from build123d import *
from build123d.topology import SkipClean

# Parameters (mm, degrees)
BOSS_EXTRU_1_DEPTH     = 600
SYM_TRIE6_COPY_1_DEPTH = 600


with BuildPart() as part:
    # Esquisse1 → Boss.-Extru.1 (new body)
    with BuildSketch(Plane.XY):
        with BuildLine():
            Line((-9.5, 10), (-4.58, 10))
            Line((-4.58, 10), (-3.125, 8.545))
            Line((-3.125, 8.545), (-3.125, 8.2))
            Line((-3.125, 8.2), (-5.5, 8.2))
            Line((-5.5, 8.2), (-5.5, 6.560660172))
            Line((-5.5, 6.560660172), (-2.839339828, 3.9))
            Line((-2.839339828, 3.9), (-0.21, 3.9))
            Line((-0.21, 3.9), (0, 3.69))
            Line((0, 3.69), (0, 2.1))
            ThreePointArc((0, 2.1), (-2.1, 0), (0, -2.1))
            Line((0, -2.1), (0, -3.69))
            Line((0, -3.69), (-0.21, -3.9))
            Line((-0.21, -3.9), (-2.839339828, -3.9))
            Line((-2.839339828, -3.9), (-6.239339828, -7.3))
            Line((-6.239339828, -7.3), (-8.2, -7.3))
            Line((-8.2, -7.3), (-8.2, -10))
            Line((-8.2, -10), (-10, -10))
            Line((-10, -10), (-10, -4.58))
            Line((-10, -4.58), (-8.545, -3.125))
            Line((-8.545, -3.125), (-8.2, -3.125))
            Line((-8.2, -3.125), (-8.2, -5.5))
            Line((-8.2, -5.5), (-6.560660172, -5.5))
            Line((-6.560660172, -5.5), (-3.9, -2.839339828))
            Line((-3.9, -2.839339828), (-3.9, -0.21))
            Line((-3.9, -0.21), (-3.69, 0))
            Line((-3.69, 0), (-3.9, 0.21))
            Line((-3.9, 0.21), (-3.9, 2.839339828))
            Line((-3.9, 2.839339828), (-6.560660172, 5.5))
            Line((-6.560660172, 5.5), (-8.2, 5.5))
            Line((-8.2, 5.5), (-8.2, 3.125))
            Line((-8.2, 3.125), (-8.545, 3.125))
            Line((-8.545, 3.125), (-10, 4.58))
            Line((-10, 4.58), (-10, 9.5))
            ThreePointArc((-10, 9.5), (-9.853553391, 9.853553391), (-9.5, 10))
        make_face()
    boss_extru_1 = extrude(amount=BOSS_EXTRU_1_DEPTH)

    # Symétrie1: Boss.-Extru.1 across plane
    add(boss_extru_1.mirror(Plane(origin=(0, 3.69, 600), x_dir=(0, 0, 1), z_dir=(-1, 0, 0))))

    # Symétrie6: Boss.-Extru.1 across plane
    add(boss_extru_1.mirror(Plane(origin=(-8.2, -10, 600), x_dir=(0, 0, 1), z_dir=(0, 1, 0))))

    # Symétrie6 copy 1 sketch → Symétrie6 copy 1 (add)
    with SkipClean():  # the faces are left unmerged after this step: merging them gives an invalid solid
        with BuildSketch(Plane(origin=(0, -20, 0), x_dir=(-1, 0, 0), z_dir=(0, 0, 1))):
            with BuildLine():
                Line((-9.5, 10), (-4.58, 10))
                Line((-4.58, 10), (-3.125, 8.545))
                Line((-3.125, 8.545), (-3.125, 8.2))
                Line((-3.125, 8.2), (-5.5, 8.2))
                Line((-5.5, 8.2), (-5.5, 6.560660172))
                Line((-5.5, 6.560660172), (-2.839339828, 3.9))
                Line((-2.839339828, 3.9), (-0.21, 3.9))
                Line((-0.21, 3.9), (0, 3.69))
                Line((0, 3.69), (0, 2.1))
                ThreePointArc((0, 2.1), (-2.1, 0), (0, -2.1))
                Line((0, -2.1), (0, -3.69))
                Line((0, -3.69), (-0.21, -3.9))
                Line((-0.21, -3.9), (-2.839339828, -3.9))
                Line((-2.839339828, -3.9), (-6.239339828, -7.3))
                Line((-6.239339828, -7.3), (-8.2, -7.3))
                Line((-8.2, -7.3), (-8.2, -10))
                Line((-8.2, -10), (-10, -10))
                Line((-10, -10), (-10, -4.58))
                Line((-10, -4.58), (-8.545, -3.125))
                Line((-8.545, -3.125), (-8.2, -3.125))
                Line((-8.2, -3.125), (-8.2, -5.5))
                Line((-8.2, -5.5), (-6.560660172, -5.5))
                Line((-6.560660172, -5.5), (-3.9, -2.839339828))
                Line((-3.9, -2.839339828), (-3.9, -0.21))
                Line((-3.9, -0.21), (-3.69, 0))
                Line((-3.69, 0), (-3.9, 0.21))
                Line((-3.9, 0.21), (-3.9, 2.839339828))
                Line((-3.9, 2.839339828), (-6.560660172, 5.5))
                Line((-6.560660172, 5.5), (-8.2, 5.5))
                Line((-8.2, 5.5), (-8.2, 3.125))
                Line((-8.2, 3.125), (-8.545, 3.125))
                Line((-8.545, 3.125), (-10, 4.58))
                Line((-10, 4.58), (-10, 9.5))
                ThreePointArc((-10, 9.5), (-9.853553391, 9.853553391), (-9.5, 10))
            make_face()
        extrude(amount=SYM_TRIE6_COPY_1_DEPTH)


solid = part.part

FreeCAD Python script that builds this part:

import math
import FreeCAD as App
import Part
import Sketcher

doc = App.newDocument("Part")
body = doc.addObject("PartDesign::Body", "Body")

sketch1 = body.newObject("Sketcher::SketchObject", "Sketch")
sketch1.AttachmentSupport = (doc.getObject("XY_Plane"), [""])
sketch1.MapMode = "FlatFace"
sketch1.addGeometry(Part.LineSegment(App.Vector(-4.58, 10, 0), App.Vector(-9.5, 10, 0)), False)
sketch1.addGeometry(Part.ArcOfCircle(Part.Circle(App.Vector(-9.5, 9.5, 0), App.Vector(0, 0, 1), 0.5), math.radians(90), math.radians(180)), False)
sketch1.addGeometry(Part.LineSegment(App.Vector(-10, 9.5, 0), App.Vector(-10, 4.58, 0)), False)
sketch1.addGeometry(Part.LineSegment(App.Vector(-10, 4.58, 0), App.Vector(-8.54, 3.12, 0)), False)
sketch1.addGeometry(Part.LineSegment(App.Vector(-8.54, 3.12, 0), App.Vector(-8.2, 3.12, 0)), False)
sketch1.addGeometry(Part.LineSegment(App.Vector(-8.2, 3.12, 0), App.Vector(-8.2, 5.5, 0)), False)
sketch1.addGeometry(Part.LineSegment(App.Vector(-8.2, 5.5, 0), App.Vector(-6.56, 5.5, 0)), False)
sketch1.addGeometry(Part.LineSegment(App.Vector(-6.56, 5.5, 0), App.Vector(-3.9, 2.84, 0)), False)
sketch1.addGeometry(Part.LineSegment(App.Vector(-3.9, 2.84, 0), App.Vector(-3.9, 0.21, 0)), False)
sketch1.addGeometry(Part.LineSegment(App.Vector(-3.9, 0.21, 0), App.Vector(-3.69, 0, 0)), False)
sketch1.addGeometry(Part.LineSegment(App.Vector(-3.69, 0, 0), App.Vector(-3.9, -0.21, 0)), False)
sketch1.addGeometry(Part.LineSegment(App.Vector(-3.9, -0.21, 0), App.Vector(-3.9, -2.84, 0)), False)
sketch1.addGeometry(Part.LineSegment(App.Vector(-3.9, -2.84, 0), App.Vector(-6.56, -5.5, 0)), False)
sketch1.addGeometry(Part.LineSegment(App.Vector(-6.56, -5.5, 0), App.Vector(-8.2, -5.5, 0)), False)
sketch1.addGeometry(Part.LineSegment(App.Vector(-8.2, -5.5, 0), App.Vector(-8.2, -3.12, 0)), False)
sketch1.addGeometry(Part.LineSegment(App.Vector(-8.2, -3.12, 0), App.Vector(-8.54, -3.12, 0)), False)
sketch1.addGeometry(Part.LineSegment(App.Vector(-8.54, -3.12, 0), App.Vector(-10, -4.58, 0)), False)
sketch1.addGeometry(Part.LineSegment(App.Vector(-10, -4.58, 0), App.Vector(-10, -10, 0)), False)
sketch1.addGeometry(Part.LineSegment(App.Vector(-10, -10, 0), App.Vector(-8.2, -10, 0)), False)
sketch1.addGeometry(Part.LineSegment(App.Vector(-8.2, -10, 0), App.Vector(-8.2, -7.3, 0)), False)
sketch1.addGeometry(Part.LineSegment(App.Vector(-8.2, -7.3, 0), App.Vector(-6.24, -7.3, 0)), False)
sketch1.addGeometry(Part.LineSegment(App.Vector(-6.24, -7.3, 0), App.Vector(-2.84, -3.9, 0)), False)
sketch1.addGeometry(Part.LineSegment(App.Vector(-2.84, -3.9, 0), App.Vector(-0.21, -3.9, 0)), False)
sketch1.addGeometry(Part.LineSegment(App.Vector(-0.21, -3.9, 0), App.Vector(0, -3.69, 0)), False)
sketch1.addGeometry(Part.LineSegment(App.Vector(0, -3.69, 0), App.Vector(0, -2.1, 0)), False)
sketch1.addGeometry(Part.ArcOfCircle(Part.Circle(App.Vector(0, 0, 0), App.Vector(0, 0, 1), 2.1), math.radians(90), math.radians(270)), False)
sketch1.addGeometry(Part.LineSegment(App.Vector(0, 2.1, 0), App.Vector(0, 3.69, 0)), False)
sketch1.addGeometry(Part.LineSegment(App.Vector(0, 3.69, 0), App.Vector(-0.21, 3.9, 0)), False)
sketch1.addGeometry(Part.LineSegment(App.Vector(-0.21, 3.9, 0), App.Vector(-2.84, 3.9, 0)), False)
sketch1.addGeometry(Part.LineSegment(App.Vector(-2.84, 3.9, 0), App.Vector(-5.5, 6.56, 0)), False)
sketch1.addGeometry(Part.LineSegment(App.Vector(-5.5, 6.56, 0), App.Vector(-5.5, 8.2, 0)), False)
sketch1.addGeometry(Part.LineSegment(App.Vector(-5.5, 8.2, 0), App.Vector(-3.12, 8.2, 0)), False)
sketch1.addGeometry(Part.LineSegment(App.Vector(-3.12, 8.2, 0), App.Vector(-3.12, 8.54, 0)), False)
sketch1.addGeometry(Part.LineSegment(App.Vector(-3.12, 8.54, 0), App.Vector(-4.58, 10, 0)), False)
sketch1.addConstraint(Sketcher.Constraint("Tangent", 0, 2, 1, 1))
sketch1.addConstraint(Sketcher.Constraint("Tangent", 1, 2, 2, 1))
sketch1.addConstraint(Sketcher.Constraint("Coincident", 2, 2, 3, 1))
sketch1.addConstraint(Sketcher.Constraint("Coincident", 3, 2, 4, 1))
sketch1.addConstraint(Sketcher.Constraint("Coincident", 4, 2, 5, 1))
sketch1.addConstraint(Sketcher.Constraint("Coincident", 5, 2, 6, 1))
sketch1.addConstraint(Sketcher.Constraint("Coincident", 6, 2, 7, 1))
sketch1.addConstraint(Sketcher.Constraint("Coincident", 7, 2, 8, 1))
sketch1.addConstraint(Sketcher.Constraint("Coincident", 8, 2, 9, 1))
sketch1.addConstraint(Sketcher.Constraint("Coincident", 9, 2, 10, 1))
sketch1.addConstraint(Sketcher.Constraint("Coincident", 10, 2, 11, 1))
sketch1.addConstraint(Sketcher.Constraint("Coincident", 11, 2, 12, 1))
sketch1.addConstraint(Sketcher.Constraint("Coincident", 12, 2, 13, 1))
sketch1.addConstraint(Sketcher.Constraint("Coincident", 13, 2, 14, 1))
sketch1.addConstraint(Sketcher.Constraint("Coincident", 14, 2, 15, 1))
sketch1.addConstraint(Sketcher.Constraint("Coincident", 15, 2, 16, 1))
sketch1.addConstraint(Sketcher.Constraint("Coincident", 16, 2, 17, 1))
sketch1.addConstraint(Sketcher.Constraint("Coincident", 17, 2, 18, 1))
sketch1.addConstraint(Sketcher.Constraint("Coincident", 18, 2, 19, 1))
sketch1.addConstraint(Sketcher.Constraint("Coincident", 19, 2, 20, 1))
sketch1.addConstraint(Sketcher.Constraint("Coincident", 20, 2, 21, 1))
sketch1.addConstraint(Sketcher.Constraint("Coincident", 21, 2, 22, 1))
sketch1.addConstraint(Sketcher.Constraint("Coincident", 22, 2, 23, 1))
sketch1.addConstraint(Sketcher.Constraint("Coincident", 23, 2, 24, 1))
sketch1.addConstraint(Sketcher.Constraint("Coincident", 24, 2, 25, 2))
sketch1.addConstraint(Sketcher.Constraint("Coincident", 25, 1, 26, 1))
sketch1.addConstraint(Sketcher.Constraint("Coincident", 26, 2, 27, 1))
sketch1.addConstraint(Sketcher.Constraint("Coincident", 27, 2, 28, 1))
sketch1.addConstraint(Sketcher.Constraint("Coincident", 28, 2, 29, 1))
sketch1.addConstraint(Sketcher.Constraint("Coincident", 29, 2, 30, 1))
sketch1.addConstraint(Sketcher.Constraint("Coincident", 30, 2, 31, 1))
sketch1.addConstraint(Sketcher.Constraint("Coincident", 31, 2, 32, 1))
sketch1.addConstraint(Sketcher.Constraint("Coincident", 32, 2, 33, 1))
sketch1.addConstraint(Sketcher.Constraint("Coincident", 33, 2, 0, 1))
sketch1.addConstraint(Sketcher.Constraint("Horizontal", 0))
sketch1.addConstraint(Sketcher.Constraint("Vertical", 2))
sketch1.addConstraint(Sketcher.Constraint("Horizontal", 4))
sketch1.addConstraint(Sketcher.Constraint("Vertical", 5))
sketch1.addConstraint(Sketcher.Constraint("Horizontal", 6))
sketch1.addConstraint(Sketcher.Constraint("Vertical", 8))
sketch1.addConstraint(Sketcher.Constraint("Vertical", 11))
sketch1.addConstraint(Sketcher.Constraint("Horizontal", 13))
sketch1.addConstraint(Sketcher.Constraint("Vertical", 14))
sketch1.addConstraint(Sketcher.Constraint("Horizontal", 15))
sketch1.addConstraint(Sketcher.Constraint("Vertical", 17))
sketch1.addConstraint(Sketcher.Constraint("Horizontal", 18))
sketch1.addConstraint(Sketcher.Constraint("Vertical", 19))
sketch1.addConstraint(Sketcher.Constraint("Horizontal", 20))
sketch1.addConstraint(Sketcher.Constraint("Horizontal", 22))
sketch1.addConstraint(Sketcher.Constraint("Vertical", 24))
sketch1.addConstraint(Sketcher.Constraint("Vertical", 26))
sketch1.addConstraint(Sketcher.Constraint("Horizontal", 28))
sketch1.addConstraint(Sketcher.Constraint("Vertical", 30))
sketch1.addConstraint(Sketcher.Constraint("Horizontal", 31))
sketch1.addConstraint(Sketcher.Constraint("Vertical", 32))
sketch1.addConstraint(Sketcher.Constraint("Coincident", 25, 3, -1, 1))
sketch1.addConstraint(Sketcher.Constraint("Symmetric", 23, 2, 26, 2, -1, 1))
sketch1.addConstraint(Sketcher.Constraint("Symmetric", 8, 2, 10, 2, -1))
sketch1.addConstraint(Sketcher.Constraint("Symmetric", 6, 2, 12, 2, -1))
sketch1.addConstraint(Sketcher.Constraint("Symmetric", 4, 2, 14, 2, -1))
sketch1.addConstraint(Sketcher.Constraint("Symmetric", 2, 2, 16, 2, -1))
sketch1.addConstraint(Sketcher.Constraint("Symmetric", 22, 2, 27, 2, -1))
sketch1.addConstraint(Sketcher.Constraint("PointOnObject", 9, 2, -1))
sketch1.addConstraint(Sketcher.Constraint("PointOnObject", 23, 2, -2))
sketch1.addConstraint(Sketcher.Constraint("Parallel", 3, 7))
sketch1.addConstraint(Sketcher.Constraint("Parallel", 7, 9))
sketch1.addConstraint(Sketcher.Constraint("Perpendicular", 9, 10))
sketch1.addConstraint(Sketcher.Constraint("Parallel", 10, 12))
sketch1.addConstraint(Sketcher.Constraint("Parallel", 12, 16))
sketch1.addConstraint(Sketcher.Constraint("Parallel", 16, 21))
sketch1.addConstraint(Sketcher.Constraint("Parallel", 21, 23))
sketch1.addConstraint(Sketcher.Constraint("Parallel", 27, 29))
sketch1.addConstraint(Sketcher.Constraint("Parallel", 29, 33))
sketch1.addConstraint(Sketcher.Constraint("Vertical", 14, 2, 18, 2))
sketch1.addConstraint(Sketcher.Constraint("Vertical", 21, 2, 28, 2))
sketch1.addConstraint(Sketcher.Constraint("Equal", 0, 2))
sketch1.addConstraint(Sketcher.Constraint("Equal", 31, 5))
sketch1.addConstraint(Sketcher.Constraint("Equal", 28, 8))
sketch1.addConstraint(Sketcher.Constraint("Equal", 13, 30))
sketch1.addConstraint(Sketcher.Constraint("Equal", 15, 32))
sketch1.addConstraint(Sketcher.Constraint("Equal", 10, 23))
sketch1.addConstraint(Sketcher.Constraint("Equal", 12, 29))
sketch1.addConstraint(Sketcher.Constraint("Equal", 16, 33))
sketch1.addConstraint(Sketcher.Constraint("Radius", 1, 0.5))
sketch1.addConstraint(Sketcher.Constraint("Radius", 25, 2.1))
sketch1.addConstraint(Sketcher.Constraint("DistanceX", 18, 1, 18, 2, 1.8))
sketch1.addConstraint(Sketcher.Constraint("DistanceY", 19, 1, 19, 2, 2.7))
sketch1.addConstraint(Sketcher.Constraint("DistanceY", -1, 1, 0, 2, 10.0))
sketch1.addConstraint(Sketcher.Constraint("DistanceY", 17, 2, -1, 1, 10.0))
sketch1.addConstraint(Sketcher.Constraint("DistanceY", 5, 2, 1, 3, 4.0))
sketch1.addConstraint(Sketcher.Constraint("DistanceX", 0, 2, 0, 1, 4.92))
sketch1.addConstraint(Sketcher.Constraint("DistanceY", 24, 1, 24, 2, 1.59))
sketch1.addConstraint(Sketcher.Constraint("DistanceX", 7, 2, -1, 1, 3.9))
sketch1.addConstraint(Sketcher.Constraint("DistanceX", 4, 1, 4, 2, 0.345))
sketch1.addConstraint(Sketcher.Constraint("DistanceX", 6, 1, 6, 2, 1.63934))
pad1 = body.newObject("PartDesign::Pad", "Pad")
pad1.Profile = sketch1
pad1.Length = 600
doc.recompute()

mirrored = body.newObject("PartDesign::Mirrored", "Mirrored")
mirrored.Originals = [pad1]
mirrored.MirrorPlane = (doc.getObject("YZ_Plane"), [""])
body.Tip = mirrored
doc.recompute()

datumplane = body.newObject("PartDesign::Plane", "DatumPlane")
datumplane.AttachmentSupport = (doc.getObject("XZ_Plane"), [""])
datumplane.MapMode = "FlatFace"
datumplane.AttachmentOffset = App.Placement(App.Vector(0, 0, 10), App.Rotation())
mirrored2 = body.newObject("PartDesign::Mirrored", "Mirrored001")
mirrored2.Originals = [pad1]
mirrored2.MirrorPlane = (datumplane, [""])
body.Tip = mirrored2

sketch2 = body.newObject("Sketcher::SketchObject", "Sketch001")
sketch2.AttachmentSupport = (doc.getObject("XY_Plane"), [""])
sketch2.MapMode = "FlatFace"
sketch2.addGeometry(Part.LineSegment(App.Vector(4.58, -30, 0), App.Vector(9.5, -30, 0)), False)
sketch2.addGeometry(Part.ArcOfCircle(Part.Circle(App.Vector(9.5, -29.5, 0), App.Vector(0, 0, 1), 0.5), math.radians(-90), math.radians(0)), False)
sketch2.addGeometry(Part.LineSegment(App.Vector(10, -29.5, 0), App.Vector(10, -24.58, 0)), False)
sketch2.addGeometry(Part.LineSegment(App.Vector(10, -24.58, 0), App.Vector(8.54, -23.12, 0)), False)
sketch2.addGeometry(Part.LineSegment(App.Vector(8.54, -23.12, 0), App.Vector(8.2, -23.12, 0)), False)
sketch2.addGeometry(Part.LineSegment(App.Vector(8.2, -23.12, 0), App.Vector(8.2, -25.5, 0)), False)
sketch2.addGeometry(Part.LineSegment(App.Vector(8.2, -25.5, 0), App.Vector(6.56, -25.5, 0)), False)
sketch2.addGeometry(Part.LineSegment(App.Vector(6.56, -25.5, 0), App.Vector(3.9, -22.84, 0)), False)
sketch2.addGeometry(Part.LineSegment(App.Vector(3.9, -22.84, 0), App.Vector(3.9, -20.21, 0)), False)
sketch2.addGeometry(Part.LineSegment(App.Vector(3.9, -20.21, 0), App.Vector(3.69, -20, 0)), False)
sketch2.addGeometry(Part.LineSegment(App.Vector(3.69, -20, 0), App.Vector(3.9, -19.79, 0)), False)
sketch2.addGeometry(Part.LineSegment(App.Vector(3.9, -19.79, 0), App.Vector(3.9, -17.16, 0)), False)
sketch2.addGeometry(Part.LineSegment(App.Vector(3.9, -17.16, 0), App.Vector(6.56, -14.5, 0)), False)
sketch2.addGeometry(Part.LineSegment(App.Vector(6.56, -14.5, 0), App.Vector(8.2, -14.5, 0)), False)
sketch2.addGeometry(Part.LineSegment(App.Vector(8.2, -14.5, 0), App.Vector(8.2, -16.88, 0)), False)
sketch2.addGeometry(Part.LineSegment(App.Vector(8.2, -16.88, 0), App.Vector(8.54, -16.88, 0)), False)
sketch2.addGeometry(Part.LineSegment(App.Vector(8.54, -16.88, 0), App.Vector(10, -15.42, 0)), False)
sketch2.addGeometry(Part.LineSegment(App.Vector(10, -15.42, 0), App.Vector(10, -10, 0)), False)
sketch2.addGeometry(Part.LineSegment(App.Vector(10, -10, 0), App.Vector(8.2, -10, 0)), False)
sketch2.addGeometry(Part.LineSegment(App.Vector(8.2, -10, 0), App.Vector(8.2, -12.7, 0)), False)
sketch2.addGeometry(Part.LineSegment(App.Vector(8.2, -12.7, 0), App.Vector(6.24, -12.7, 0)), False)
sketch2.addGeometry(Part.LineSegment(App.Vector(6.24, -12.7, 0), App.Vector(2.84, -16.1, 0)), False)
sketch2.addGeometry(Part.LineSegment(App.Vector(2.84, -16.1, 0), App.Vector(0.21, -16.1, 0)), False)
sketch2.addGeometry(Part.LineSegment(App.Vector(0.21, -16.1, 0), App.Vector(0, -16.31, 0)), False)
sketch2.addGeometry(Part.LineSegment(App.Vector(0, -16.31, 0), App.Vector(0, -17.9, 0)), False)
sketch2.addGeometry(Part.ArcOfCircle(Part.Circle(App.Vector(0, -20, 0), App.Vector(0, 0, 1), 2.1), math.radians(-90), math.radians(90)), False)
sketch2.addGeometry(Part.LineSegment(App.Vector(0, -22.1, 0), App.Vector(0, -23.69, 0)), False)
sketch2.addGeometry(Part.LineSegment(App.Vector(0, -23.69, 0), App.Vector(0.21, -23.9, 0)), False)
sketch2.addGeometry(Part.LineSegment(App.Vector(0.21, -23.9, 0), App.Vector(2.84, -23.9, 0)), False)
sketch2.addGeometry(Part.LineSegment(App.Vector(2.84, -23.9, 0), App.Vector(5.5, -26.56, 0)), False)
sketch2.addGeometry(Part.LineSegment(App.Vector(5.5, -26.56, 0), App.Vector(5.5, -28.2, 0)), False)
sketch2.addGeometry(Part.LineSegment(App.Vector(5.5, -28.2, 0), App.Vector(3.12, -28.2, 0)), False)
sketch2.addGeometry(Part.LineSegment(App.Vector(3.12, -28.2, 0), App.Vector(3.12, -28.55, 0)), False)
sketch2.addGeometry(Part.LineSegment(App.Vector(3.12, -28.55, 0), App.Vector(4.58, -30, 0)), False)
sketch2.addConstraint(Sketcher.Constraint("Tangent", 0, 2, 1, 1))
sketch2.addConstraint(Sketcher.Constraint("Tangent", 1, 2, 2, 1))
sketch2.addConstraint(Sketcher.Constraint("Coincident", 2, 2, 3, 1))
sketch2.addConstraint(Sketcher.Constraint("Coincident", 3, 2, 4, 1))
sketch2.addConstraint(Sketcher.Constraint("Coincident", 4, 2, 5, 1))
sketch2.addConstraint(Sketcher.Constraint("Coincident", 5, 2, 6, 1))
sketch2.addConstraint(Sketcher.Constraint("Coincident", 6, 2, 7, 1))
sketch2.addConstraint(Sketcher.Constraint("Coincident", 7, 2, 8, 1))
sketch2.addConstraint(Sketcher.Constraint("Coincident", 8, 2, 9, 1))
sketch2.addConstraint(Sketcher.Constraint("Coincident", 9, 2, 10, 1))
sketch2.addConstraint(Sketcher.Constraint("Coincident", 10, 2, 11, 1))
sketch2.addConstraint(Sketcher.Constraint("Coincident", 11, 2, 12, 1))
sketch2.addConstraint(Sketcher.Constraint("Coincident", 12, 2, 13, 1))
sketch2.addConstraint(Sketcher.Constraint("Coincident", 13, 2, 14, 1))
sketch2.addConstraint(Sketcher.Constraint("Coincident", 14, 2, 15, 1))
sketch2.addConstraint(Sketcher.Constraint("Coincident", 15, 2, 16, 1))
sketch2.addConstraint(Sketcher.Constraint("Coincident", 16, 2, 17, 1))
sketch2.addConstraint(Sketcher.Constraint("Coincident", 17, 2, 18, 1))
sketch2.addConstraint(Sketcher.Constraint("Coincident", 18, 2, 19, 1))
sketch2.addConstraint(Sketcher.Constraint("Coincident", 19, 2, 20, 1))
sketch2.addConstraint(Sketcher.Constraint("Coincident", 20, 2, 21, 1))
sketch2.addConstraint(Sketcher.Constraint("Coincident", 21, 2, 22, 1))
sketch2.addConstraint(Sketcher.Constraint("Coincident", 22, 2, 23, 1))
sketch2.addConstraint(Sketcher.Constraint("Coincident", 23, 2, 24, 1))
sketch2.addConstraint(Sketcher.Constraint("Coincident", 24, 2, 25, 2))
sketch2.addConstraint(Sketcher.Constraint("Coincident", 25, 1, 26, 1))
sketch2.addConstraint(Sketcher.Constraint("Coincident", 26, 2, 27, 1))
sketch2.addConstraint(Sketcher.Constraint("Coincident", 27, 2, 28, 1))
sketch2.addConstraint(Sketcher.Constraint("Coincident", 28, 2, 29, 1))
sketch2.addConstraint(Sketcher.Constraint("Coincident", 29, 2, 30, 1))
sketch2.addConstraint(Sketcher.Constraint("Coincident", 30, 2, 31, 1))
sketch2.addConstraint(Sketcher.Constraint("Coincident", 31, 2, 32, 1))
sketch2.addConstraint(Sketcher.Constraint("Coincident", 32, 2, 33, 1))
sketch2.addConstraint(Sketcher.Constraint("Coincident", 33, 2, 0, 1))
sketch2.addConstraint(Sketcher.Constraint("Horizontal", 0))
sketch2.addConstraint(Sketcher.Constraint("Vertical", 2))
sketch2.addConstraint(Sketcher.Constraint("Horizontal", 4))
sketch2.addConstraint(Sketcher.Constraint("Vertical", 5))
sketch2.addConstraint(Sketcher.Constraint("Horizontal", 6))
sketch2.addConstraint(Sketcher.Constraint("Vertical", 8))
sketch2.addConstraint(Sketcher.Constraint("Vertical", 11))
sketch2.addConstraint(Sketcher.Constraint("Horizontal", 13))
sketch2.addConstraint(Sketcher.Constraint("Vertical", 14))
sketch2.addConstraint(Sketcher.Constraint("Horizontal", 15))
sketch2.addConstraint(Sketcher.Constraint("Vertical", 17))
sketch2.addConstraint(Sketcher.Constraint("Horizontal", 18))
sketch2.addConstraint(Sketcher.Constraint("Vertical", 19))
sketch2.addConstraint(Sketcher.Constraint("Horizontal", 20))
sketch2.addConstraint(Sketcher.Constraint("Horizontal", 22))
sketch2.addConstraint(Sketcher.Constraint("Vertical", 24))
sketch2.addConstraint(Sketcher.Constraint("Vertical", 26))
sketch2.addConstraint(Sketcher.Constraint("Horizontal", 28))
sketch2.addConstraint(Sketcher.Constraint("Vertical", 30))
sketch2.addConstraint(Sketcher.Constraint("Horizontal", 31))
sketch2.addConstraint(Sketcher.Constraint("Vertical", 32))
sketch2.addConstraint(Sketcher.Constraint("PointOnObject", 25, 3, -2))
sketch2.addConstraint(Sketcher.Constraint("PointOnObject", 23, 2, -2))
sketch2.addConstraint(Sketcher.Constraint("PointOnObject", 25, 1, -2))
sketch2.addConstraint(Sketcher.Constraint("Parallel", 3, 7))
sketch2.addConstraint(Sketcher.Constraint("Parallel", 7, 9))
sketch2.addConstraint(Sketcher.Constraint("Perpendicular", 9, 10))
sketch2.addConstraint(Sketcher.Constraint("Parallel", 10, 12))
sketch2.addConstraint(Sketcher.Constraint("Parallel", 12, 16))
sketch2.addConstraint(Sketcher.Constraint("Parallel", 16, 21))
sketch2.addConstraint(Sketcher.Constraint("Parallel", 21, 23))
sketch2.addConstraint(Sketcher.Constraint("Perpendicular", 23, 27))
sketch2.addConstraint(Sketcher.Constraint("Parallel", 27, 29))
sketch2.addConstraint(Sketcher.Constraint("Parallel", 29, 33))
sketch2.addConstraint(Sketcher.Constraint("Horizontal", 25, 3, 9, 2))
sketch2.addConstraint(Sketcher.Constraint("Vertical", 8, 2, 10, 2))
sketch2.addConstraint(Sketcher.Constraint("Vertical", 6, 2, 12, 2))
sketch2.addConstraint(Sketcher.Constraint("Vertical", 5, 2, 13, 2))
sketch2.addConstraint(Sketcher.Constraint("Vertical", 3, 2, 15, 2))
sketch2.addConstraint(Sketcher.Constraint("Vertical", 2, 2, 16, 2))
sketch2.addConstraint(Sketcher.Constraint("Vertical", 14, 2, 18, 2))
sketch2.addConstraint(Sketcher.Constraint("Vertical", 22, 2, 27, 2))
sketch2.addConstraint(Sketcher.Constraint("Vertical", 21, 2, 28, 2))
sketch2.addConstraint(Sketcher.Constraint("Equal", 0, 2))
sketch2.addConstraint(Sketcher.Constraint("Equal", 31, 5))
sketch2.addConstraint(Sketcher.Constraint("Equal", 28, 8))
sketch2.addConstraint(Sketcher.Constraint("Equal", 8, 11))
sketch2.addConstraint(Sketcher.Constraint("Equal", 5, 14))
sketch2.addConstraint(Sketcher.Constraint("Equal", 24, 26))
sketch2.addConstraint(Sketcher.Constraint("Equal", 13, 30))
sketch2.addConstraint(Sketcher.Constraint("Equal", 15, 32))
sketch2.addConstraint(Sketcher.Constraint("Equal", 9, 10))
sketch2.addConstraint(Sketcher.Constraint("Equal", 10, 23))
sketch2.addConstraint(Sketcher.Constraint("Equal", 12, 29))
sketch2.addConstraint(Sketcher.Constraint("Equal", 16, 33))
sketch2.addConstraint(Sketcher.Constraint("Radius", 1, 0.5))
sketch2.addConstraint(Sketcher.Constraint("Radius", 25, 2.1))
sketch2.addConstraint(Sketcher.Constraint("DistanceX", 18, 2, 18, 1, 1.8))
sketch2.addConstraint(Sketcher.Constraint("DistanceY", 19, 2, 19, 1, 2.7))
sketch2.addConstraint(Sketcher.Constraint("DistanceY", 25, 3, -1, 1, 20.0))
sketch2.addConstraint(Sketcher.Constraint("DistanceY", 0, 2, -1, 1, 30.0))
sketch2.addConstraint(Sketcher.Constraint("DistanceY", 17, 2, -1, 1, 10.0))
sketch2.addConstraint(Sketcher.Constraint("DistanceY", 1, 3, 5, 2, 4.0))
sketch2.addConstraint(Sketcher.Constraint("DistanceX", 0, 1, 0, 2, 4.92))
sketch2.addConstraint(Sketcher.Constraint("DistanceY", 24, 2, 24, 1, 1.59))
sketch2.addConstraint(Sketcher.Constraint("DistanceX", -1, 1, 7, 2, 3.9))
sketch2.addConstraint(Sketcher.Constraint("DistanceX", 4, 2, 4, 1, 0.345))
sketch2.addConstraint(Sketcher.Constraint("DistanceX", 6, 2, 6, 1, 1.63934))
pad2 = body.newObject("PartDesign::Pad", "Pad001")
pad2.Profile = sketch2
pad2.Length = 600

doc.recompute()
